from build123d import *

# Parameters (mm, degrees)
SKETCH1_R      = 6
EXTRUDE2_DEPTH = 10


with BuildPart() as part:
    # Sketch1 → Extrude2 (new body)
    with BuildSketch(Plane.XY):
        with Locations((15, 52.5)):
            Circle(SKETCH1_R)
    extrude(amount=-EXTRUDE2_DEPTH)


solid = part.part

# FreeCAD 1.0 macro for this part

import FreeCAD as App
import Part
import Sketcher

V = App.Vector

doc = App.newDocument("Part")
body = doc.addObject("PartDesign::Body", "Body")

# Sketch on XY plane
sketch1 = body.newObject("Sketcher::SketchObject", "Sketch")
sketch1.AttachmentSupport = (doc.getObject("XY_Plane"), [""])
sketch1.MapMode = "FlatFace"
sketch1.addGeometry(Part.Circle(V(15, 52, 0), V(0, 0, 1), 6), False)
sketch1.addConstraint([
    Sketcher.Constraint("Diameter", 0, 12.0),
    Sketcher.Constraint("DistanceX", -1, 1, 0, 3, 15.0),
    Sketcher.Constraint("DistanceY", -1, 1, 0, 3, 52.5),
])
pad1 = body.newObject("PartDesign::Pad", "Pad")
pad1.Profile = sketch1
pad1.Length = 10
pad1.Reversed = True

doc.recompute()
